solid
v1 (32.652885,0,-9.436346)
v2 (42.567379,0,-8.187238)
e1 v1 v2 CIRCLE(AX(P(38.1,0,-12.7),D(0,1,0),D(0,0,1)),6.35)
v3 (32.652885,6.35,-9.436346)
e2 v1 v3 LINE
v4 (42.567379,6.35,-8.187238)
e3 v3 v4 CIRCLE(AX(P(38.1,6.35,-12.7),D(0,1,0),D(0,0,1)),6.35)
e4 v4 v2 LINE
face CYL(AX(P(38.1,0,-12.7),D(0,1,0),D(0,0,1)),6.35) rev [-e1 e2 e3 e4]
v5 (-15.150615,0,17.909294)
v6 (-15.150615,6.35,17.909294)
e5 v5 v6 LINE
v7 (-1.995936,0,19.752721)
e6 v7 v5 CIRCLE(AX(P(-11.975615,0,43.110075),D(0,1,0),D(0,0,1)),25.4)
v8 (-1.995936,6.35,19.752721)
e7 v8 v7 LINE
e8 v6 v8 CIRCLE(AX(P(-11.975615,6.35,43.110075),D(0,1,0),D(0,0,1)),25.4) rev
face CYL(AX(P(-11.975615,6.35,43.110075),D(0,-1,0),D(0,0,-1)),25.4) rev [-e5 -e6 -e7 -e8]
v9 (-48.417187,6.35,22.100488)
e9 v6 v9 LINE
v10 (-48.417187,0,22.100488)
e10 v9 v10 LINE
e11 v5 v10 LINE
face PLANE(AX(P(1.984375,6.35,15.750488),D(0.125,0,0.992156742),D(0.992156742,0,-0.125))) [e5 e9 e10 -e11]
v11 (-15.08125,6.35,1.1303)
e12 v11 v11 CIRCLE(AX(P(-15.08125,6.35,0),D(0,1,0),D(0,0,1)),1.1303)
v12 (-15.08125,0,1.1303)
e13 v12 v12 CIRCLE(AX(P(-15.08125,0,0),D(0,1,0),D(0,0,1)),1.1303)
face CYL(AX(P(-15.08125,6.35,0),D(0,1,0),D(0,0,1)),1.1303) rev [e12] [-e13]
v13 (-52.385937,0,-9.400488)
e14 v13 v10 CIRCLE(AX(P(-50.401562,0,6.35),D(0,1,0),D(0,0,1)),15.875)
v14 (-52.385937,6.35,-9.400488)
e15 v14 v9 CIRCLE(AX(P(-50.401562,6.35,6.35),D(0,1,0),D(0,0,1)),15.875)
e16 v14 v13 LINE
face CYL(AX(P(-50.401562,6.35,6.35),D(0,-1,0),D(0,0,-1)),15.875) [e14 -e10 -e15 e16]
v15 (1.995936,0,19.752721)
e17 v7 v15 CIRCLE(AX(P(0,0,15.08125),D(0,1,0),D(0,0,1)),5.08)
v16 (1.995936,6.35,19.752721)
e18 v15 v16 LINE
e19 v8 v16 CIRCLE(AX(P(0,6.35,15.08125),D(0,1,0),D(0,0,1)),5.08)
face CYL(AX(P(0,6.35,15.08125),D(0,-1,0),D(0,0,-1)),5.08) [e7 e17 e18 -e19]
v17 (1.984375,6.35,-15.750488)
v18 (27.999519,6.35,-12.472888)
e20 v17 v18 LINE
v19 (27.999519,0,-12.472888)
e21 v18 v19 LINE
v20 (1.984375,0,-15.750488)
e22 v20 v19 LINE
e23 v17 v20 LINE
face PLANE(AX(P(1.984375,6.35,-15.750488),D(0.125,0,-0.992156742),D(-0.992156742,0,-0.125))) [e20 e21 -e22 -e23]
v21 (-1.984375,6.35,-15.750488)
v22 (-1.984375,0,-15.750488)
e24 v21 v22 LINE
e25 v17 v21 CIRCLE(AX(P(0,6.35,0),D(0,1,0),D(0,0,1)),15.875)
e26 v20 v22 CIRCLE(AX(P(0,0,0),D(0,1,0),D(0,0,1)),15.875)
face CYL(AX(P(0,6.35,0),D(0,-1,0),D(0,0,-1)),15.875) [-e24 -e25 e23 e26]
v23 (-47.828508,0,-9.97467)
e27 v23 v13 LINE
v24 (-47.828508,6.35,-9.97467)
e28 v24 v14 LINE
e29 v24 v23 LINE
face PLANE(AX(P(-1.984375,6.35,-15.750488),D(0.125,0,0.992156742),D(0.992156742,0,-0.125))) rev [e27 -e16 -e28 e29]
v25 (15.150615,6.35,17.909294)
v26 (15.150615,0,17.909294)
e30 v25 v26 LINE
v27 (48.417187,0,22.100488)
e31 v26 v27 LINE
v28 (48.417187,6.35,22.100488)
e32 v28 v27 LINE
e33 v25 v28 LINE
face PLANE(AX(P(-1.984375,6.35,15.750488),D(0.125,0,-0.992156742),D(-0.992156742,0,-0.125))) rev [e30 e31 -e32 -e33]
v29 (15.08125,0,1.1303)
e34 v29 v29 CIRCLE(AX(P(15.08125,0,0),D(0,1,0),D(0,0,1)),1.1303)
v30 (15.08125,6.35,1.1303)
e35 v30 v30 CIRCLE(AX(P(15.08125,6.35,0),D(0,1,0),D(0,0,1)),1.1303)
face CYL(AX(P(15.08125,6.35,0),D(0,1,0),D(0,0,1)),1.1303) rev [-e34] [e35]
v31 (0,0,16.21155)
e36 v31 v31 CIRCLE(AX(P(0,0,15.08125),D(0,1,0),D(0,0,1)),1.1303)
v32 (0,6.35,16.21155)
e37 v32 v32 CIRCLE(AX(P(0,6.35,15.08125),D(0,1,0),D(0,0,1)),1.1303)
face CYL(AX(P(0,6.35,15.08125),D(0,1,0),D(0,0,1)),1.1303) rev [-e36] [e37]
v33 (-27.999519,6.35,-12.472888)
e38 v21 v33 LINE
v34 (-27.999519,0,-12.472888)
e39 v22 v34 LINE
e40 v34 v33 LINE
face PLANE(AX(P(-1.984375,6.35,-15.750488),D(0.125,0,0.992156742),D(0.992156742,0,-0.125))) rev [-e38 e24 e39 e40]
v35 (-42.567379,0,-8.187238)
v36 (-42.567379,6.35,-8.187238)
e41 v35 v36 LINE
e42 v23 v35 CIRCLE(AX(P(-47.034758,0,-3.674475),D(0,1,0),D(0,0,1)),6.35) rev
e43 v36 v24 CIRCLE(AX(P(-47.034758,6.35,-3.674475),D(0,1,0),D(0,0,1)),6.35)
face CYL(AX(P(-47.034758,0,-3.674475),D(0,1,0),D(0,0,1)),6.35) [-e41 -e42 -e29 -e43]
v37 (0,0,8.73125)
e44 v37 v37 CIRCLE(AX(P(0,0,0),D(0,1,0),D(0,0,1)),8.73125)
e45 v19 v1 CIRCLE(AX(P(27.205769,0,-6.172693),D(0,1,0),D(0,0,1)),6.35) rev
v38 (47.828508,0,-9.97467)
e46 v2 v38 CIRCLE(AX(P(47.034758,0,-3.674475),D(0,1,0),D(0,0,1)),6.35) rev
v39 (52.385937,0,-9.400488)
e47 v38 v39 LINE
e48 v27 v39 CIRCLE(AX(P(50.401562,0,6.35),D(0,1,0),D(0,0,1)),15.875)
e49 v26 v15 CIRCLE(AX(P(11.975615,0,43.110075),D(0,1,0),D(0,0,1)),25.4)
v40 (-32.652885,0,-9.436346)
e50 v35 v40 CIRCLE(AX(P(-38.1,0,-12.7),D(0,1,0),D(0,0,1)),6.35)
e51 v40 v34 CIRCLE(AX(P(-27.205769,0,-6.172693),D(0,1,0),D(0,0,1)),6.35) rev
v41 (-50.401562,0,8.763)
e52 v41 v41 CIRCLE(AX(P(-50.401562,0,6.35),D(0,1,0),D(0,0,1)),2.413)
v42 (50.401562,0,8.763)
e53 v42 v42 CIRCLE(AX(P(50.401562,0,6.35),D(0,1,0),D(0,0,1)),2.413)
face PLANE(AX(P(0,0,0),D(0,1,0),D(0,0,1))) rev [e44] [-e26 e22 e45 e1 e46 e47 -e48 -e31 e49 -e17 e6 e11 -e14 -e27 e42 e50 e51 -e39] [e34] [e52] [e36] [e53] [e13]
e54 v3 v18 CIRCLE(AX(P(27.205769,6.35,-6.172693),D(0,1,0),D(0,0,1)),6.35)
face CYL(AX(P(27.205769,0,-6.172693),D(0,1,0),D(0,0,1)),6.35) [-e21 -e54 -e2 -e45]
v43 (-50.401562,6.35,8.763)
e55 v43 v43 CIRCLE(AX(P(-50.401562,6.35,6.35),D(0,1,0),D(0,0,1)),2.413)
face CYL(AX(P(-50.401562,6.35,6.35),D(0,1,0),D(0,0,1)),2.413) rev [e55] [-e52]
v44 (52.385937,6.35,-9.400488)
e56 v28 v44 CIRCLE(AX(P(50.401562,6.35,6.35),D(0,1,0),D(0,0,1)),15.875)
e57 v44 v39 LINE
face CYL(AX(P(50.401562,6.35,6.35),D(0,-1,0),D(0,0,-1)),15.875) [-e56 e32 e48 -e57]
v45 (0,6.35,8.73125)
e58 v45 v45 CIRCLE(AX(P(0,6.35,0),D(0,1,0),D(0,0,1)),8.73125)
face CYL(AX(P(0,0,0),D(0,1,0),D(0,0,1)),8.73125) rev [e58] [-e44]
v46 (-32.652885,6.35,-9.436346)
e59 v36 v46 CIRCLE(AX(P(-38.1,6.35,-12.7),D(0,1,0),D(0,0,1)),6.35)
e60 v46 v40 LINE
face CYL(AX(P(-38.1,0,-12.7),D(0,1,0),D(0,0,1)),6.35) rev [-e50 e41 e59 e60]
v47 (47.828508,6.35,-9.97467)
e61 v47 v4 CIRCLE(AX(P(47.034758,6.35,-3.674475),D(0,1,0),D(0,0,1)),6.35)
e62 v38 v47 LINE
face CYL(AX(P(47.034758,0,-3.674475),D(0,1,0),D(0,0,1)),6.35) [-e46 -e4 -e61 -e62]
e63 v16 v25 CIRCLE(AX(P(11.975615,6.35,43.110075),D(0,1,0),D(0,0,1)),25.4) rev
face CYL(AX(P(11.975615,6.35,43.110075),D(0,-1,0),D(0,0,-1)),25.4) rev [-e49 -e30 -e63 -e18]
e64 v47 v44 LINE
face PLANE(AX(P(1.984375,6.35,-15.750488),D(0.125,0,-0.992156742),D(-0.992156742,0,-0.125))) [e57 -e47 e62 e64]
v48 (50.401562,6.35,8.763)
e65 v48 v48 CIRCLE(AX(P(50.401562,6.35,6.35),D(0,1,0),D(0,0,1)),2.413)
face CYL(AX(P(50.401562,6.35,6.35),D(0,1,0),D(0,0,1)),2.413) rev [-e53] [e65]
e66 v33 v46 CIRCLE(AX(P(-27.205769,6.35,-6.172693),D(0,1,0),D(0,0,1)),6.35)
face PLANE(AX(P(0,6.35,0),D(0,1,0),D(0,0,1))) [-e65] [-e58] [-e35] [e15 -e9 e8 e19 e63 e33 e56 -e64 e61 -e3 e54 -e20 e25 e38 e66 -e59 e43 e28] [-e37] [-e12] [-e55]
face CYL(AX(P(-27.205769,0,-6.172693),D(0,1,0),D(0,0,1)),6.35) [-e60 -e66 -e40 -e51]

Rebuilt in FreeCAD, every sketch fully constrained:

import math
import FreeCAD as App
import Part
import Sketcher
Q = App.Units.Quantity


def edges_at(feature, points):
    """Names of the edges that pass closest to the given points."""
    edges = feature.Shape.Edges
    near = lambda p: min(range(len(edges)), key=lambda i: edges[i].distToShape(Part.Vertex(*p))[0])
    return sorted({f"Edge{near(p) + 1}" for p in points})

doc = App.newDocument("Part")
body = doc.addObject("PartDesign::Body", "Body")

# Sketch on XZ plane
sketch1 = doc.addObject("Sketcher::SketchObject", "Sketch")
body.addObject(sketch1)
sketch1.AttachmentSupport = (doc.XZ_Plane, [""])
sketch1.MapMode = "FlatFace"
sketch1.addGeometry([
    Part.LineSegment(App.Vector(-48.4, 22.1, 0), App.Vector(-4.8, 16.6, 0)),  # 0
    Part.ArcOfCircle(Part.Circle(App.Vector(0, 15.1, 0), App.Vector(0, 0, 1), 5.1), math.radians(18), math.radians(162)),  # 1
    Part.LineSegment(App.Vector(4.8, 16.6, 0), App.Vector(48.4, 22.1, 0)),  # 2
    Part.ArcOfCircle(Part.Circle(App.Vector(50.4, 6.3, 0), App.Vector(0, 0, 1), 15.9), math.radians(-83), math.radians(97)),  # 3
    Part.LineSegment(App.Vector(52.4, -9.4, 0), App.Vector(2, -15.8, 0)),  # 4
    Part.ArcOfCircle(Part.Circle(App.Vector(0, 0, 0), App.Vector(0, 0, 1), 15.9), math.radians(-97.18), math.radians(-82.82)),  # 5
    Part.LineSegment(App.Vector(-2, -15.8, 0), App.Vector(-52.4, -9.4, 0)),  # 6
    Part.ArcOfCircle(Part.Circle(App.Vector(-50.4, 6.3, 0), App.Vector(0, 0, 1), 15.9), math.radians(83), math.radians(263)),  # 7
], False)
sketch1.addConstraint([
    Sketcher.Constraint("Coincident", 0, 2, 1, 2),
    Sketcher.Constraint("Coincident", 1, 1, 2, 1),
    Sketcher.Constraint("Tangent", 2, 2, 3, 2),
    Sketcher.Constraint("Tangent", 3, 1, 4, 1),
    Sketcher.Constraint("Tangent", 4, 2, 5, 2),
    Sketcher.Constraint("Tangent", 5, 1, 6, 1),
    Sketcher.Constraint("Tangent", 6, 2, 7, 2),
    Sketcher.Constraint("Tangent", 7, 1, 0, 1),
    Sketcher.Constraint("Coincident", 5, 3, -1, 1),
    Sketcher.Constraint("Equal", 3, 5),
    Sketcher.Constraint("Equal", 5, 7),
    Sketcher.Constraint("Symmetric", 3, 3, 7, 3, -2),
    Sketcher.Constraint("Symmetric", 0, 2, 1, 1, -2),
    Sketcher.Constraint("Parallel", 2, 4),
    Sketcher.Constraint("Radius", 1, Q("0.2 in")),
    Sketcher.Constraint("Distance", 4, Q("2 in")),
    Sketcher.Constraint("Radius", 3, Q("0.625 in")),
    Sketcher.Constraint("DistanceY", -1, 1, 3, 3, Q("0.25 in")),
    Sketcher.Constraint("DistanceY", -1, 1, 1, 3, Q("0.59375 in")),
])
pad1 = doc.addObject("PartDesign::Pad", "Pad")
body.addObject(pad1)
pad1.Profile = sketch1
pad1.Length = Q("0.25 in")
pad1.Reversed = True

# Sketch on XZ plane
sketch2 = doc.addObject("Sketcher::SketchObject", "Sketch001")
body.addObject(sketch2)
sketch2.AttachmentSupport = (doc.XZ_Plane, [""])
sketch2.MapMode = "FlatFace"
sketch2.AttachmentOffset = App.Placement(App.Vector(0, 0, -0.25 * 25.4), App.Rotation())
sketch2.addGeometry([
    Part.Circle(App.Vector(-50.4, 6.3, 0), App.Vector(0, 0, 1), 2.4),
    Part.Circle(App.Vector(50.4, 6.3, 0), App.Vector(0, 0, 1), 2.4),
], False)
sketch2.addConstraint([
    Sketcher.Constraint("Equal", 0, 1),
    Sketcher.Constraint("Symmetric", 0, 3, 1, 3, -2),
    Sketcher.Constraint("Diameter", 0, Q("0.19 in")),
    Sketcher.Constraint("DistanceY", -1, 1, 0, 3, Q("0.25 in")),
    Sketcher.Constraint("DistanceX", 0, 3, -1, 1, 50.401562),
])
doc.recompute()
hole = doc.addObject("PartDesign::Hole", "Hole")
body.addObject(hole)
hole.Profile = sketch2
hole.ThreadType = "None"
hole.Diameter = Q("0.19 in")
hole.DepthType = "ThroughAll"
hole.Reversed = True

# Sketch on XZ plane
sketch3 = doc.addObject("Sketcher::SketchObject", "Sketch002")
body.addObject(sketch3)
sketch3.AttachmentSupport = (doc.XZ_Plane, [""])
sketch3.MapMode = "FlatFace"
sketch3.AttachmentOffset = App.Placement(App.Vector(0, 0, -0.25 * 25.4), App.Rotation())
sketch3.addGeometry(Part.Circle(App.Vector(0, 0, 0), App.Vector(0, 0, 1), 9), False)
sketch3.addConstraint([
    Sketcher.Constraint("Coincident", 0, 3, -1, 1),
    Sketcher.Constraint("Diameter", 0, Q("0.6875 in")),
])
pocket1 = doc.addObject("PartDesign::Pocket", "Pocket")
body.addObject(pocket1)
pocket1.Profile = sketch3
pocket1.Type = "ThroughAll"
pocket1.Reversed = True

# Sketch on XZ plane
sketch4 = doc.addObject("Sketcher::SketchObject", "Sketch003")
body.addObject(sketch4)
sketch4.AttachmentSupport = (doc.XZ_Plane, [""])
sketch4.MapMode = "FlatFace"
sketch4.AttachmentOffset = App.Placement(App.Vector(0, 0, -0.25 * 25.4), App.Rotation())
sketch4.addGeometry([
    Part.Circle(App.Vector(-38, -13, 0), App.Vector(0, 0, 1), 6),
    Part.Circle(App.Vector(38, -13, 0), App.Vector(0, 0, 1), 6),
], False)
sketch4.addConstraint([
    Sketcher.Constraint("Equal", 0, 1),
    Sketcher.Constraint("Symmetric", 0, 3, 1, 3, -2),
    Sketcher.Constraint("Diameter", 0, Q("0.5 in")),
    Sketcher.Constraint("DistanceX", 0, 3, 1, 3, Q("3 in")),
    Sketcher.Constraint("DistanceY", 0, 3, -1, 1, Q("0.5 in")),
])
pocket2 = doc.addObject("PartDesign::Pocket", "Pocket001")
body.addObject(pocket2)
pocket2.Profile = sketch4
pocket2.Type = "ThroughAll"
pocket2.Reversed = True
doc.recompute()

fillet = doc.addObject("PartDesign::Fillet", "Fillet")
body.addObject(fillet)
fillet.Base = (pocket2, edges_at(pocket2, [(-4.844, 3.175, 16.611), (4.844, 3.175, 16.611)]))
fillet.Radius = Q("1 in")
doc.recompute()

fillet2 = doc.addObject("PartDesign::Fillet", "Fillet001")
body.addObject(fillet2)
fillet2.Base = (fillet, edges_at(fillet, [
    (-31.789, 3.175, -11.995),
    (-44.039, 3.175, -10.452),
    (31.789, 3.175, -11.995),
    (44.039, 3.175, -10.452),
]))
fillet2.Radius = Q("0.25 in")

# Sketch on XZ plane
sketch5 = doc.addObject("Sketcher::SketchObject", "Sketch004")
body.addObject(sketch5)
sketch5.AttachmentSupport = (doc.XZ_Plane, [""])
sketch5.MapMode = "FlatFace"
sketch5.AttachmentOffset = App.Placement(App.Vector(0, 0, -0.25 * 25.4), App.Rotation())
sketch5.addGeometry([
    Part.Circle(App.Vector(-15.1, 0, 0), App.Vector(0, 0, 1), 1.1),
    Part.Circle(App.Vector(15.1, 0, 0), App.Vector(0, 0, 1), 1.1),
    Part.Circle(App.Vector(0, 15.1, 0), App.Vector(0, 0, 1), 1.1),
], False)
sketch5.addConstraint([
    Sketcher.Constraint("Equal", 0, 1),
    Sketcher.Constraint("Equal", 1, 2),
    Sketcher.Constraint("Symmetric", 0, 3, 1, 3, -1, 1),
    Sketcher.Constraint("PointOnObject", 0, 3, -1),
    Sketcher.Constraint("PointOnObject", 2, 3, -2),
    Sketcher.Constraint("Diameter", 0, Q("0.089 in")),
    Sketcher.Constraint("DistanceX", 0, 3, -1, 1, Q("0.59375 in")),
    Sketcher.Constraint("DistanceY", -1, 1, 2, 3, Q("0.59375 in")),
])
doc.recompute()
hole2 = doc.addObject("PartDesign::Hole", "Hole001")
body.addObject(hole2)
hole2.Profile = sketch5
hole2.ThreadType = "None"
hole2.Diameter = Q("0.089 in")
hole2.DepthType = "ThroughAll"
hole2.Reversed = True

doc.recompute()
